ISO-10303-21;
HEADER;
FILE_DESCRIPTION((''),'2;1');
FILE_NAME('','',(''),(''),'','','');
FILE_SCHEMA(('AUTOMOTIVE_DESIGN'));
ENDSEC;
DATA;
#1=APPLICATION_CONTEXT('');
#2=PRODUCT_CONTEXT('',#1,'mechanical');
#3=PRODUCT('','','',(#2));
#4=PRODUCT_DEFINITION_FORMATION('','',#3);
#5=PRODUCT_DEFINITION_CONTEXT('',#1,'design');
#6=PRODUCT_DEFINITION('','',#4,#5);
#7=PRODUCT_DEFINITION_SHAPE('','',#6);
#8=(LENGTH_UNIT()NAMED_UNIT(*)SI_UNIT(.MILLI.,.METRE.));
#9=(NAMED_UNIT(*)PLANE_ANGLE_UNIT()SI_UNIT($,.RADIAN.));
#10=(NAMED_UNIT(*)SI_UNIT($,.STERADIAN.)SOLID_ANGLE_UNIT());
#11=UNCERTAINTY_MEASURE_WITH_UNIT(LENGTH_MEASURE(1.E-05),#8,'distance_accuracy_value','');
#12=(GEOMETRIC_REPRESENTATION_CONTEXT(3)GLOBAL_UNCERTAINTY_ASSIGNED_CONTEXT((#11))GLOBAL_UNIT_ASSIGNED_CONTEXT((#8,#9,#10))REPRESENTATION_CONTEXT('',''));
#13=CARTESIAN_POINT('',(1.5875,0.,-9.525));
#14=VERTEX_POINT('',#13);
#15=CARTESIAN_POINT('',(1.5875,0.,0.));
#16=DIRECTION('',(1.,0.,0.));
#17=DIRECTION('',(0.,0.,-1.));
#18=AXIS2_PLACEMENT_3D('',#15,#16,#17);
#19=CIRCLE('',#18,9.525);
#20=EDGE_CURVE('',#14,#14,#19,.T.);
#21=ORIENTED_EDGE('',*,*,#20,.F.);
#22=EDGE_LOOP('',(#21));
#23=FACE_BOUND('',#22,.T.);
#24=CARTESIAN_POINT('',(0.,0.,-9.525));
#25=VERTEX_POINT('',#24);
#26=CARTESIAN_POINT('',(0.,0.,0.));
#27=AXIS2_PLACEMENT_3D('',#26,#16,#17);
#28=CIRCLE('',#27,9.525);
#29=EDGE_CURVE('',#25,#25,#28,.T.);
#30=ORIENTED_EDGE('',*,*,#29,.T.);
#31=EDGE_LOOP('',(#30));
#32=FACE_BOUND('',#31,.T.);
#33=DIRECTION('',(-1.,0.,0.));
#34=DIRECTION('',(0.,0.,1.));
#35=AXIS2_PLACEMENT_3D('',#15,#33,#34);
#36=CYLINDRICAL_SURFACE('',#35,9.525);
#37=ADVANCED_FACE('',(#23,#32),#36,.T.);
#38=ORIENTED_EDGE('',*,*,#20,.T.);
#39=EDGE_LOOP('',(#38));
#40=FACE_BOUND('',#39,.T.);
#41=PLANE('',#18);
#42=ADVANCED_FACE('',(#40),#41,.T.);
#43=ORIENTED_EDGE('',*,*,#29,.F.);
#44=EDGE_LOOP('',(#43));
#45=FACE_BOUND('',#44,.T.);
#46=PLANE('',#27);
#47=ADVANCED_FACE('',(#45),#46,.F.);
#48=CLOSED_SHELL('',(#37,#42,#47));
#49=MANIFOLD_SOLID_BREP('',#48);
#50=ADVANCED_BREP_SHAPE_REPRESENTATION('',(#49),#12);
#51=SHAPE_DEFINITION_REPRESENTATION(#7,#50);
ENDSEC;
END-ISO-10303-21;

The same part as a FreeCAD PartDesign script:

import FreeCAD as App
import Part
import Sketcher
from FreeCAD import Vector
Q = App.Units.Quantity

doc = App.newDocument("Part")
body = doc.addObject("PartDesign::Body", "Body")

# Sketch on YZ plane
sketch1 = doc.addObject("Sketcher::SketchObject", "Sketch")
body.addObject(sketch1)
sketch1.AttachmentSupport = (doc.YZ_Plane, [""])
sketch1.MapMode = "FlatFace"
sketch1.addGeometry(Part.Circle(Vector(0, 0, 0), Vector(0, 0, 1), 9.525), False)
sketch1.addConstraint([
    Sketcher.Constraint("Coincident", 0, 3, -1, 1),
    Sketcher.Constraint("Diameter", 0, Q("0.75 in")),
])
pad1 = doc.addObject("PartDesign::Pad", "Pad")
body.addObject(pad1)
pad1.Profile = sketch1
pad1.Length = Q("0.0625 in")

doc.recompute()
